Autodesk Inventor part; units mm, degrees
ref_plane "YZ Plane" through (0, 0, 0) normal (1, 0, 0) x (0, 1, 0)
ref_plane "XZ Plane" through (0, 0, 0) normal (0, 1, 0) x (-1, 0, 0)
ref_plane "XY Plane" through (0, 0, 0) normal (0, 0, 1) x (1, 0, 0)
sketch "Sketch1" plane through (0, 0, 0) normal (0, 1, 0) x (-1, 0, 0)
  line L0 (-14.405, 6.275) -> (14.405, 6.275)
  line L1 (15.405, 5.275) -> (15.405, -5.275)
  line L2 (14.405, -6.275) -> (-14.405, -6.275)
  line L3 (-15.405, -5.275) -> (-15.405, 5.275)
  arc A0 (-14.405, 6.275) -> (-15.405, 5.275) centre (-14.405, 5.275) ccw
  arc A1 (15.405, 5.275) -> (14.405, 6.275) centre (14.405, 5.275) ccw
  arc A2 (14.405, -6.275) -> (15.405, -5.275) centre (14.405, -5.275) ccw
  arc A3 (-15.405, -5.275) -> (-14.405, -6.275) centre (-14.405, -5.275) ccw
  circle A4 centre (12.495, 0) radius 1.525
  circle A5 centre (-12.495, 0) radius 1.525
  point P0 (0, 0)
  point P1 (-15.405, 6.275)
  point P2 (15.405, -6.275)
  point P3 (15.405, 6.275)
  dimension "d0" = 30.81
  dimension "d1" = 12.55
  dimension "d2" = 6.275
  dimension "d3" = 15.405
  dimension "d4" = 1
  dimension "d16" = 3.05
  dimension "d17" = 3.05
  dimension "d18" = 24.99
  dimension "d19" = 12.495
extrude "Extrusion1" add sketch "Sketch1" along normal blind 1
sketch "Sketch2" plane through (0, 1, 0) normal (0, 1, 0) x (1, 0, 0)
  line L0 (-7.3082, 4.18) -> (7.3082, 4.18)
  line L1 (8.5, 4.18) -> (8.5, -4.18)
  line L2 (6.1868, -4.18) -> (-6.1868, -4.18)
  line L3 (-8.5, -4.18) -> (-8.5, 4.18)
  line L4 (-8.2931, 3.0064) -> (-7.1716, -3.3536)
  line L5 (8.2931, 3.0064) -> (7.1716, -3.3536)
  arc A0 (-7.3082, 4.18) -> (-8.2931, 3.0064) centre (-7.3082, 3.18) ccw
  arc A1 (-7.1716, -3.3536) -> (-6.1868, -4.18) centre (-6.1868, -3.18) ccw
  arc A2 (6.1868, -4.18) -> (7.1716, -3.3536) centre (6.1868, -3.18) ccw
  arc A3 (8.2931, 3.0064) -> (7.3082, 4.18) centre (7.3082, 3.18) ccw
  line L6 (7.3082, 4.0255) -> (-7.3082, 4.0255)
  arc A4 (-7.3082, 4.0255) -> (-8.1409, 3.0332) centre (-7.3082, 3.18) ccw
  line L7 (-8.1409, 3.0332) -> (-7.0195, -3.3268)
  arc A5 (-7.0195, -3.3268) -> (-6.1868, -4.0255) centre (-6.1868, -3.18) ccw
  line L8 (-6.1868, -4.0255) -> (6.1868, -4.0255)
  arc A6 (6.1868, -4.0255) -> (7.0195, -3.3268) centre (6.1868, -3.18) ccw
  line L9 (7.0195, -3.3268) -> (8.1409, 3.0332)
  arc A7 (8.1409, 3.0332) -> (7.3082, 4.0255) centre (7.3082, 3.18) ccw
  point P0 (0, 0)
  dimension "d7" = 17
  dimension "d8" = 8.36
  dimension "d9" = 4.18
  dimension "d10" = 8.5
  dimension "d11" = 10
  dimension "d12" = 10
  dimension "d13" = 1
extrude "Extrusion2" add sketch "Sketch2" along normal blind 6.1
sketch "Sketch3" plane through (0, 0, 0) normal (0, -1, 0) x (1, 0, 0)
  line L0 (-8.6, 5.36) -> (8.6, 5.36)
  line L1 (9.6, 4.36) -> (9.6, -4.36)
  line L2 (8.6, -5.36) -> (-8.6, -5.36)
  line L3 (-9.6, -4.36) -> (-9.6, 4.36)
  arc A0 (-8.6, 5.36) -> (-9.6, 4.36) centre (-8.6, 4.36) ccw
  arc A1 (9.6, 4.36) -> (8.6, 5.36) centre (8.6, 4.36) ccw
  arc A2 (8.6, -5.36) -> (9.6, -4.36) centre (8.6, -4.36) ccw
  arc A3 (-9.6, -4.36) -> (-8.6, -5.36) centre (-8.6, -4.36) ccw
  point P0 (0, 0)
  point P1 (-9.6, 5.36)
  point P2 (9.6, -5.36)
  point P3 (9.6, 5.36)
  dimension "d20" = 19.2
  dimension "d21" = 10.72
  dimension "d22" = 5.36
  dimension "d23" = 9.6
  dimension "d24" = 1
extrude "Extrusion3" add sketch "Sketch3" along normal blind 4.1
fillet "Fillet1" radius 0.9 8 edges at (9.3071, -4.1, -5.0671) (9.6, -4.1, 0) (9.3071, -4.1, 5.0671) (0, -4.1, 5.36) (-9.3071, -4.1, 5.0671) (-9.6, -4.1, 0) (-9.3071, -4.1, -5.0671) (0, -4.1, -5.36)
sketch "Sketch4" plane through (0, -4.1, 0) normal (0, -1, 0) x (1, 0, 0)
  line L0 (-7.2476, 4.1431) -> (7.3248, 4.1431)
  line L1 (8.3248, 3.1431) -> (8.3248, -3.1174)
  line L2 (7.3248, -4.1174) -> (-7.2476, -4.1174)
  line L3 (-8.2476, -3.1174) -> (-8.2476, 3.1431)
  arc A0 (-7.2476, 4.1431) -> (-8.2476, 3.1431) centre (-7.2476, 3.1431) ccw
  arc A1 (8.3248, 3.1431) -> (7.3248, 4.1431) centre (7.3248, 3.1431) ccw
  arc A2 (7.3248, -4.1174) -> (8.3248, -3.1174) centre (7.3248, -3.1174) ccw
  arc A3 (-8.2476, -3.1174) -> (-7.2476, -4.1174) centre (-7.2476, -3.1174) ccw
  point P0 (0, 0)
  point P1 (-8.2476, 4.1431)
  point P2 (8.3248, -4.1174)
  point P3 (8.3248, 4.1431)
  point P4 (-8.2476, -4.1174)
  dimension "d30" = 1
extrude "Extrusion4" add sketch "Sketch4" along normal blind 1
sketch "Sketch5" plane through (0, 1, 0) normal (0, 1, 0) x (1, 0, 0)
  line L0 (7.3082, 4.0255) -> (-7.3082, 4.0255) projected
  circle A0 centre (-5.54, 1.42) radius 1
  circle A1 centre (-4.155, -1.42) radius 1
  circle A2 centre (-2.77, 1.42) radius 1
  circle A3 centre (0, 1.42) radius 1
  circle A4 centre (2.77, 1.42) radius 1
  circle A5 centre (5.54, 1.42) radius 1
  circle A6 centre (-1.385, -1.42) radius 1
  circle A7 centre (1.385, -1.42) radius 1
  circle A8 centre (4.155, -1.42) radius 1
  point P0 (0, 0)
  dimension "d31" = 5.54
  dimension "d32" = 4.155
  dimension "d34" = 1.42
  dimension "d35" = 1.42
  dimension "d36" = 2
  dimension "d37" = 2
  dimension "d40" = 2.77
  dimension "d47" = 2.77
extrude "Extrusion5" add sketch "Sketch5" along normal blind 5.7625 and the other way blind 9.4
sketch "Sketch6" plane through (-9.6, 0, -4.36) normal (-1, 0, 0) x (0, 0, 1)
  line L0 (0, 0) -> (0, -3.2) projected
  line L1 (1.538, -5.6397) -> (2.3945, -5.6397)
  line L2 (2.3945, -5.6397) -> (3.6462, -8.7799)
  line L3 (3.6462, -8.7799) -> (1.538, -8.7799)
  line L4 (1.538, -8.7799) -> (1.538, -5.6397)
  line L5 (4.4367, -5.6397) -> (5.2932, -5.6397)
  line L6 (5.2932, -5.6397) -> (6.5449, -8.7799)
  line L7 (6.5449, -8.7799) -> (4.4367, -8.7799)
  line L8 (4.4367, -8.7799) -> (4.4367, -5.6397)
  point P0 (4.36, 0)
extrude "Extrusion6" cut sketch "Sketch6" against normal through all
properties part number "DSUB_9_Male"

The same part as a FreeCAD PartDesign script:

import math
import FreeCAD as App
import Part
import Sketcher

V = App.Vector
Q = App.Units.Quantity


def edges_at(feature, points):
    """Names of the edges that pass closest to the given points."""
    edges = feature.Shape.Edges
    near = lambda p: min(range(len(edges)), key=lambda i: edges[i].distToShape(Part.Vertex(*p))[0])
    return sorted({f"Edge{near(p) + 1}" for p in points})

doc = App.newDocument("Part")
body = doc.addObject("PartDesign::Body", "Body")

# Sketch on XZ plane
sketch1 = body.newObject("Sketcher::SketchObject", "Sketch")
sketch1.AttachmentSupport = (doc.getObject("XZ_Plane"), [""])
sketch1.MapMode = "FlatFace"
sketch1.addGeometry([
    Part.LineSegment(V(-14.4, 6.3, 0), V(14.4, 6.3, 0)),  # 0
    Part.ArcOfCircle(Part.Circle(V(14.4, 5.3, 0), V(0, 0, 1), 1), math.radians(0), math.radians(90)),  # 1
    Part.LineSegment(V(15.4, 5.3, 0), V(15.4, -5.3, 0)),  # 2
    Part.ArcOfCircle(Part.Circle(V(14.4, -5.3, 0), V(0, 0, 1), 1), math.radians(-90), math.radians(0)),  # 3
    Part.LineSegment(V(14.4, -6.3, 0), V(-14.4, -6.3, 0)),  # 4
    Part.ArcOfCircle(Part.Circle(V(-14.4, -5.3, 0), V(0, 0, 1), 1), math.radians(180), math.radians(270)),  # 5
    Part.LineSegment(V(-15.4, -5.3, 0), V(-15.4, 5.3, 0)),  # 6
    Part.ArcOfCircle(Part.Circle(V(-14.4, 5.3, 0), V(0, 0, 1), 1), math.radians(90), math.radians(180)),  # 7
    Part.Circle(V(12.5, 0, 0), V(0, 0, 1), 1.5),  # 8
    Part.Circle(V(-12.5, 0, 0), V(0, 0, 1), 1.5),  # 9
], False)
sketch1.addConstraint([
    Sketcher.Constraint("Tangent", 0, 2, 1, 2),
    Sketcher.Constraint("Tangent", 1, 1, 2, 1),
    Sketcher.Constraint("Tangent", 2, 2, 3, 2),
    Sketcher.Constraint("Tangent", 3, 1, 4, 1),
    Sketcher.Constraint("Tangent", 4, 2, 5, 2),
    Sketcher.Constraint("Tangent", 5, 1, 6, 1),
    Sketcher.Constraint("Tangent", 6, 2, 7, 2),
    Sketcher.Constraint("Tangent", 7, 1, 0, 1),
    Sketcher.Constraint("Horizontal", 0),
    Sketcher.Constraint("Vertical", 2),
    Sketcher.Constraint("Horizontal", 4),
    Sketcher.Constraint("Vertical", 6),
    Sketcher.Constraint("Equal", 1, 3),
    Sketcher.Constraint("Equal", 3, 5),
    Sketcher.Constraint("Equal", 5, 7),
    Sketcher.Constraint("Equal", 8, 9),
    Sketcher.Constraint("Symmetric", 1, 3, 5, 3, -1, 1),
    Sketcher.Constraint("Symmetric", 8, 3, 9, 3, -1, 1),
    Sketcher.Constraint("PointOnObject", 8, 3, -1),
    Sketcher.Constraint("Radius", 1, Q("1 mm")),
    Sketcher.Constraint("Diameter", 8, Q("3.05 mm")),
    Sketcher.Constraint("DistanceX", 9, 3, 8, 3, Q("24.99 mm")),
    Sketcher.Constraint("DistanceY", -1, 1, 0, 2, Q("6.275 mm")),
    Sketcher.Constraint("DistanceX", -1, 1, 1, 1, Q("15.405 mm")),
])
pad1 = body.newObject("PartDesign::Pad", "Pad")
pad1.Profile = sketch1
pad1.Length = 1
pad1.Reversed = True

# Sketch on XZ plane
sketch2 = body.newObject("Sketcher::SketchObject", "Sketch001")
sketch2.AttachmentSupport = (doc.getObject("XZ_Plane"), [""])
sketch2.MapMode = "FlatFace"
sketch2.AttachmentOffset = App.Placement(V(0, 0, -1), App.Rotation())
sketch2.addGeometry([
    Part.LineSegment(V(7.3, -4.2, 0), V(-7.3, -4.2, 0)),  # 0
    Part.ArcOfCircle(Part.Circle(V(-7.3, -3.2, 0), V(0, 0, 1), 1), math.radians(170), math.radians(270)),  # 1
    Part.LineSegment(V(-8.3, -3, 0), V(-7.2, 3.4, 0)),  # 2
    Part.ArcOfCircle(Part.Circle(V(-6.2, 3.2, 0), V(0, 0, 1), 1), math.radians(90), math.radians(170)),  # 3
    Part.LineSegment(V(-6.2, 4.2, 0), V(6.2, 4.2, 0)),  # 4
    Part.ArcOfCircle(Part.Circle(V(6.2, 3.2, 0), V(0, 0, 1), 1), math.radians(10), math.radians(90)),  # 5
    Part.LineSegment(V(7.2, 3.4, 0), V(8.3, -3, 0)),  # 6
    Part.ArcOfCircle(Part.Circle(V(7.3, -3.2, 0), V(0, 0, 1), 1), math.radians(-90), math.radians(10)),  # 7
    Part.LineSegment(V(-7.3, -4, 0), V(7.3, -4, 0)),  # 8
    Part.ArcOfCircle(Part.Circle(V(7.3, -3.2, 0), V(0, 0, 1), 0.8), math.radians(-90), math.radians(10)),  # 9
    Part.LineSegment(V(8.1, -3, 0), V(7, 3.3, 0)),  # 10
    Part.ArcOfCircle(Part.Circle(V(6.2, 3.2, 0), V(0, 0, 1), 0.8), math.radians(10), math.radians(90)),  # 11
    Part.LineSegment(V(6.2, 4, 0), V(-6.2, 4, 0)),  # 12
    Part.ArcOfCircle(Part.Circle(V(-6.2, 3.2, 0), V(0, 0, 1), 0.8), math.radians(90), math.radians(170)),  # 13
    Part.LineSegment(V(-7, 3.3, 0), V(-8.1, -3, 0)),  # 14
    Part.ArcOfCircle(Part.Circle(V(-7.3, -3.2, 0), V(0, 0, 1), 0.8), math.radians(170), math.radians(270)),  # 15
], False)
sketch2.addConstraint([
    Sketcher.Constraint("Tangent", 0, 2, 1, 2),
    Sketcher.Constraint("Tangent", 1, 1, 2, 1),
    Sketcher.Constraint("Tangent", 2, 2, 3, 2),
    Sketcher.Constraint("Tangent", 3, 1, 4, 1),
    Sketcher.Constraint("Tangent", 4, 2, 5, 2),
    Sketcher.Constraint("Tangent", 5, 1, 6, 1),
    Sketcher.Constraint("Tangent", 6, 2, 7, 2),
    Sketcher.Constraint("Tangent", 7, 1, 0, 1),
    Sketcher.Constraint("Tangent", 8, 2, 9, 1),
    Sketcher.Constraint("Tangent", 9, 2, 10, 1),
    Sketcher.Constraint("Tangent", 10, 2, 11, 1),
    Sketcher.Constraint("Tangent", 11, 2, 12, 1),
    Sketcher.Constraint("Tangent", 12, 2, 13, 1),
    Sketcher.Constraint("Tangent", 13, 2, 14, 1),
    Sketcher.Constraint("Tangent", 14, 2, 15, 1),
    Sketcher.Constraint("Tangent", 15, 2, 8, 1),
    Sketcher.Constraint("Horizontal", 0),
    Sketcher.Constraint("Horizontal", 4),
    Sketcher.Constraint("Horizontal", 8),
    Sketcher.Constraint("Horizontal", 12),
    Sketcher.Constraint("Coincident", 9, 3, 7, 3),
    Sketcher.Constraint("Coincident", 11, 3, 5, 3),
    Sketcher.Constraint("Coincident", 13, 3, 3, 3),
    Sketcher.Constraint("Coincident", 15, 3, 1, 3),
    Sketcher.Constraint("Equal", 1, 3),
    Sketcher.Constraint("Equal", 3, 5),
    Sketcher.Constraint("Equal", 5, 7),
    Sketcher.Constraint("Equal", 9, 11),
    Sketcher.Constraint("Symmetric", 2, 2, 5, 1, -2),
    Sketcher.Constraint("Radius", 1, Q("1 mm")),
    Sketcher.Constraint("DistanceY", 0, 2, -1, 1, Q("4.18 mm")),
    Sketcher.Constraint("DistanceY", -1, 1, 3, 1, Q("4.18 mm")),
    Sketcher.Constraint("Angle", 2, Q("79.9995 deg")),
    Sketcher.Constraint("Radius", 9, Q("0.8455 mm")),
    Sketcher.Constraint("DistanceX", 0, 2, 0, 1, Q("14.6164 mm")),
])
pad2 = body.newObject("PartDesign::Pad", "Pad001")
pad2.Profile = sketch2
pad2.Length = 6.1
pad2.Reversed = True

# Sketch on XZ plane
sketch3 = body.newObject("Sketcher::SketchObject", "Sketch002")
sketch3.AttachmentSupport = (doc.getObject("XZ_Plane"), [""])
sketch3.MapMode = "FlatFace"
sketch3.addGeometry([
    Part.LineSegment(V(8.6, 5.4, 0), V(-8.6, 5.4, 0)),  # 0
    Part.ArcOfCircle(Part.Circle(V(-8.6, 4.4, 0), V(0, 0, 1), 1), math.radians(90), math.radians(180)),  # 1
    Part.LineSegment(V(-9.6, 4.4, 0), V(-9.6, -4.4, 0)),  # 2
    Part.ArcOfCircle(Part.Circle(V(-8.6, -4.4, 0), V(0, 0, 1), 1), math.radians(180), math.radians(270)),  # 3
    Part.LineSegment(V(-8.6, -5.4, 0), V(8.6, -5.4, 0)),  # 4
    Part.ArcOfCircle(Part.Circle(V(8.6, -4.4, 0), V(0, 0, 1), 1), math.radians(-90), math.radians(0)),  # 5
    Part.LineSegment(V(9.6, -4.4, 0), V(9.6, 4.4, 0)),  # 6
    Part.ArcOfCircle(Part.Circle(V(8.6, 4.4, 0), V(0, 0, 1), 1), math.radians(0), math.radians(90)),  # 7
], False)
sketch3.addConstraint([
    Sketcher.Constraint("Tangent", 0, 2, 1, 1),
    Sketcher.Constraint("Tangent", 1, 2, 2, 1),
    Sketcher.Constraint("Tangent", 2, 2, 3, 1),
    Sketcher.Constraint("Tangent", 3, 2, 4, 1),
    Sketcher.Constraint("Tangent", 4, 2, 5, 1),
    Sketcher.Constraint("Tangent", 5, 2, 6, 1),
    Sketcher.Constraint("Tangent", 6, 2, 7, 1),
    Sketcher.Constraint("Tangent", 7, 2, 0, 1),
    Sketcher.Constraint("Horizontal", 0),
    Sketcher.Constraint("Vertical", 2),
    Sketcher.Constraint("Horizontal", 4),
    Sketcher.Constraint("Vertical", 6),
    Sketcher.Constraint("Equal", 1, 3),
    Sketcher.Constraint("Equal", 3, 5),
    Sketcher.Constraint("Equal", 5, 7),
    Sketcher.Constraint("Symmetric", 1, 3, 5, 3, -1, 1),
    Sketcher.Constraint("Radius", 1, Q("1 mm")),
    Sketcher.Constraint("DistanceX", 1, 2, -1, 1, Q("9.6 mm")),
    Sketcher.Constraint("DistanceY", -1, 1, 0, 2, Q("5.36 mm")),
])
pad3 = body.newObject("PartDesign::Pad", "Pad002")
pad3.Profile = sketch3
pad3.Length = 4.1
doc.recompute()

fillet = body.newObject("PartDesign::Fillet", "Fillet")
fillet.Base = (pad3, edges_at(pad3, [
    (9.307, -4.1, -5.067),
    (9.6, -4.1, 0),
    (9.307, -4.1, 5.067),
    (0, -4.1, 5.36),
    (-9.307, -4.1, 5.067),
    (-9.6, -4.1, 0),
    (-9.307, -4.1, -5.067),
    (0, -4.1, -5.36),
]))
fillet.Radius = 0.9

# Sketch on XZ plane
sketch4 = body.newObject("Sketcher::SketchObject", "Sketch003")
sketch4.AttachmentSupport = (doc.getObject("XZ_Plane"), [""])
sketch4.MapMode = "FlatFace"
sketch4.AttachmentOffset = App.Placement(V(0, 0, 4.1), App.Rotation())
sketch4.addGeometry([
    Part.LineSegment(V(7.3, 4.1, 0), V(-7.2, 4.1, 0)),  # 0
    Part.ArcOfCircle(Part.Circle(V(-7.2, 3.1, 0), V(0, 0, 1), 1), math.radians(90), math.radians(180)),  # 1
    Part.LineSegment(V(-8.2, 3.1, 0), V(-8.2, -3.1, 0)),  # 2
    Part.ArcOfCircle(Part.Circle(V(-7.2, -3.1, 0), V(0, 0, 1), 1), math.radians(180), math.radians(270)),  # 3
    Part.LineSegment(V(-7.2, -4.1, 0), V(7.3, -4.1, 0)),  # 4
    Part.ArcOfCircle(Part.Circle(V(7.3, -3.1, 0), V(0, 0, 1), 1), math.radians(-90), math.radians(0)),  # 5
    Part.LineSegment(V(8.3, -3.1, 0), V(8.3, 3.1, 0)),  # 6
    Part.ArcOfCircle(Part.Circle(V(7.3, 3.1, 0), V(0, 0, 1), 1), math.radians(0), math.radians(90)),  # 7
], False)
sketch4.addConstraint([
    Sketcher.Constraint("Tangent", 0, 2, 1, 1),
    Sketcher.Constraint("Tangent", 1, 2, 2, 1),
    Sketcher.Constraint("Tangent", 2, 2, 3, 1),
    Sketcher.Constraint("Tangent", 3, 2, 4, 1),
    Sketcher.Constraint("Tangent", 4, 2, 5, 1),
    Sketcher.Constraint("Tangent", 5, 2, 6, 1),
    Sketcher.Constraint("Tangent", 6, 2, 7, 1),
    Sketcher.Constraint("Tangent", 7, 2, 0, 1),
    Sketcher.Constraint("Horizontal", 0),
    Sketcher.Constraint("Vertical", 2),
    Sketcher.Constraint("Horizontal", 4),
    Sketcher.Constraint("Vertical", 6),
    Sketcher.Constraint("Equal", 1, 3),
    Sketcher.Constraint("Equal", 3, 5),
    Sketcher.Constraint("Equal", 5, 7),
    Sketcher.Constraint("Radius", 1, Q("1 mm")),
    Sketcher.Constraint("DistanceX", 0, 2, 0, 1, Q("14.5724 mm")),
    Sketcher.Constraint("DistanceY", 2, 2, 2, 1, Q("6.2605 mm")),
    Sketcher.Constraint("DistanceY", -1, 1, 1, 3, Q("3.143 mm")),
    Sketcher.Constraint("DistanceX", 1, 3, -1, 1, Q("7.2476 mm")),
])
pad4 = body.newObject("PartDesign::Pad", "Pad003")
pad4.Profile = sketch4
pad4.Length = 1

# Sketch on XZ plane
sketch5 = body.newObject("Sketcher::SketchObject", "Sketch004")
sketch5.AttachmentSupport = (doc.getObject("XZ_Plane"), [""])
sketch5.MapMode = "FlatFace"
sketch5.AttachmentOffset = App.Placement(V(0, 0, -1), App.Rotation())
sketch5.addGeometry([
    Part.Circle(V(-5.5, -1.4, 0), V(0, 0, 1), 1),  # 0
    Part.Circle(V(-4.2, 1.4, 0), V(0, 0, 1), 1),  # 1
    Part.Circle(V(-2.8, -1.4, 0), V(0, 0, 1), 1),  # 2
    Part.Circle(V(0, -1.4, 0), V(0, 0, 1), 1),  # 3
    Part.Circle(V(2.8, -1.4, 0), V(0, 0, 1), 1),  # 4
    Part.Circle(V(5.5, -1.4, 0), V(0, 0, 1), 1),  # 5
    Part.Circle(V(-1.4, 1.4, 0), V(0, 0, 1), 1),  # 6
    Part.Circle(V(1.4, 1.4, 0), V(0, 0, 1), 1),  # 7
    Part.Circle(V(4.2, 1.4, 0), V(0, 0, 1), 1),  # 8
], False)
sketch5.addConstraint([
    Sketcher.Constraint("Equal", 0, 1),
    Sketcher.Constraint("Equal", 1, 2),
    Sketcher.Constraint("Equal", 2, 3),
    Sketcher.Constraint("Equal", 3, 4),
    Sketcher.Constraint("Equal", 4, 5),
    Sketcher.Constraint("Equal", 5, 6),
    Sketcher.Constraint("Equal", 6, 7),
    Sketcher.Constraint("Equal", 7, 8),
    Sketcher.Constraint("Symmetric", 2, 3, 4, 3, -2),
    Sketcher.Constraint("Symmetric", 0, 3, 5, 3, -2),
    Sketcher.Constraint("Symmetric", 6, 3, 7, 3, -2),
    Sketcher.Constraint("Symmetric", 1, 3, 8, 3, -2),
    Sketcher.Constraint("PointOnObject", 3, 3, -2),
    Sketcher.Constraint("Horizontal", 0, 3, 2, 3),
    Sketcher.Constraint("Horizontal", 2, 3, 3, 3),
    Sketcher.Constraint("Horizontal", 1, 3, 6, 3),
    Sketcher.Constraint("Diameter", 0, Q("2 mm")),
    Sketcher.Constraint("DistanceX", 0, 3, -1, 1, Q("5.54 mm")),
    Sketcher.Constraint("DistanceY", 0, 3, -1, 1, Q("1.42 mm")),
    Sketcher.Constraint("DistanceY", -1, 1, 1, 3, Q("1.42 mm")),
    Sketcher.Constraint("DistanceX", 2, 3, -1, 1, Q("2.77 mm")),
    Sketcher.Constraint("DistanceX", 1, 3, 6, 3, Q("2.77 mm")),
    Sketcher.Constraint("DistanceX", 6, 3, 7, 3, Q("2.77 mm")),
])
pad5 = body.newObject("PartDesign::Pad", "Pad004")
pad5.Profile = sketch5
pad5.Type = "TwoLengths"
pad5.Length = 5.7625
pad5.Length2 = 9.4
pad5.Reversed = True

# Sketch on YZ plane
sketch6 = body.newObject("Sketcher::SketchObject", "Sketch005")
sketch6.AttachmentSupport = (doc.getObject("YZ_Plane"), [""])
sketch6.MapMode = "FlatFace"
sketch6.AttachmentOffset = App.Placement(V(0, 0, -9.6), App.Rotation())
sketch6.addGeometry([
    Part.LineSegment(V(-5.6, -2, 0), V(-5.6, -2.8, 0)),  # 0
    Part.LineSegment(V(-5.6, -2.8, 0), V(-8.8, -2.8, 0)),  # 1
    Part.LineSegment(V(-8.8, -2.8, 0), V(-8.8, -0.7, 0)),  # 2
    Part.LineSegment(V(-8.8, -0.7, 0), V(-5.6, -2, 0)),  # 3
    Part.LineSegment(V(-5.6, 0.9, 0), V(-5.6, 0.1, 0)),  # 4
    Part.LineSegment(V(-5.6, 0.1, 0), V(-8.8, 0.1, 0)),  # 5
    Part.LineSegment(V(-8.8, 0.1, 0), V(-8.8, 2.2, 0)),  # 6
    Part.LineSegment(V(-8.8, 2.2, 0), V(-5.6, 0.9, 0)),  # 7
], False)
sketch6.addConstraint([
    Sketcher.Constraint("Coincident", 0, 2, 1, 1),
    Sketcher.Constraint("Coincident", 1, 2, 2, 1),
    Sketcher.Constraint("Coincident", 2, 2, 3, 1),
    Sketcher.Constraint("Coincident", 3, 2, 0, 1),
    Sketcher.Constraint("Coincident", 4, 2, 5, 1),
    Sketcher.Constraint("Coincident", 5, 2, 6, 1),
    Sketcher.Constraint("Coincident", 6, 2, 7, 1),
    Sketcher.Constraint("Coincident", 7, 2, 4, 1),
    Sketcher.Constraint("Vertical", 0),
    Sketcher.Constraint("Horizontal", 1),
    Sketcher.Constraint("Vertical", 2),
    Sketcher.Constraint("Vertical", 4),
    Sketcher.Constraint("Horizontal", 5),
    Sketcher.Constraint("Vertical", 6),
    Sketcher.Constraint("Parallel", 3, 7),
    Sketcher.Constraint("Vertical", 3, 2, 4, 2),
    Sketcher.Constraint("Vertical", 2, 2, 5, 2),
    Sketcher.Constraint("Equal", 0, 4),
    Sketcher.Constraint("DistanceX", 1, 2, -1, 1, Q("8.78 mm")),
    Sketcher.Constraint("DistanceX", 1, 2, 1, 1, Q("3.1402 mm")),
    Sketcher.Constraint("DistanceY", 0, 2, 0, 1, Q("0.8565 mm")),
    Sketcher.Constraint("DistanceY", 2, 1, 2, 2, Q("2.1082 mm")),
    Sketcher.Constraint("DistanceY", 0, 2, -1, 1, Q("2.822 mm")),
    Sketcher.Constraint("DistanceY", -1, 1, 6, 2, Q("2.185 mm")),
])
pocket1 = body.newObject("PartDesign::Pocket", "Pocket")
pocket1.Profile = sketch6
pocket1.Type = "ThroughAll"
pocket1.Reversed = True

doc.recompute()
